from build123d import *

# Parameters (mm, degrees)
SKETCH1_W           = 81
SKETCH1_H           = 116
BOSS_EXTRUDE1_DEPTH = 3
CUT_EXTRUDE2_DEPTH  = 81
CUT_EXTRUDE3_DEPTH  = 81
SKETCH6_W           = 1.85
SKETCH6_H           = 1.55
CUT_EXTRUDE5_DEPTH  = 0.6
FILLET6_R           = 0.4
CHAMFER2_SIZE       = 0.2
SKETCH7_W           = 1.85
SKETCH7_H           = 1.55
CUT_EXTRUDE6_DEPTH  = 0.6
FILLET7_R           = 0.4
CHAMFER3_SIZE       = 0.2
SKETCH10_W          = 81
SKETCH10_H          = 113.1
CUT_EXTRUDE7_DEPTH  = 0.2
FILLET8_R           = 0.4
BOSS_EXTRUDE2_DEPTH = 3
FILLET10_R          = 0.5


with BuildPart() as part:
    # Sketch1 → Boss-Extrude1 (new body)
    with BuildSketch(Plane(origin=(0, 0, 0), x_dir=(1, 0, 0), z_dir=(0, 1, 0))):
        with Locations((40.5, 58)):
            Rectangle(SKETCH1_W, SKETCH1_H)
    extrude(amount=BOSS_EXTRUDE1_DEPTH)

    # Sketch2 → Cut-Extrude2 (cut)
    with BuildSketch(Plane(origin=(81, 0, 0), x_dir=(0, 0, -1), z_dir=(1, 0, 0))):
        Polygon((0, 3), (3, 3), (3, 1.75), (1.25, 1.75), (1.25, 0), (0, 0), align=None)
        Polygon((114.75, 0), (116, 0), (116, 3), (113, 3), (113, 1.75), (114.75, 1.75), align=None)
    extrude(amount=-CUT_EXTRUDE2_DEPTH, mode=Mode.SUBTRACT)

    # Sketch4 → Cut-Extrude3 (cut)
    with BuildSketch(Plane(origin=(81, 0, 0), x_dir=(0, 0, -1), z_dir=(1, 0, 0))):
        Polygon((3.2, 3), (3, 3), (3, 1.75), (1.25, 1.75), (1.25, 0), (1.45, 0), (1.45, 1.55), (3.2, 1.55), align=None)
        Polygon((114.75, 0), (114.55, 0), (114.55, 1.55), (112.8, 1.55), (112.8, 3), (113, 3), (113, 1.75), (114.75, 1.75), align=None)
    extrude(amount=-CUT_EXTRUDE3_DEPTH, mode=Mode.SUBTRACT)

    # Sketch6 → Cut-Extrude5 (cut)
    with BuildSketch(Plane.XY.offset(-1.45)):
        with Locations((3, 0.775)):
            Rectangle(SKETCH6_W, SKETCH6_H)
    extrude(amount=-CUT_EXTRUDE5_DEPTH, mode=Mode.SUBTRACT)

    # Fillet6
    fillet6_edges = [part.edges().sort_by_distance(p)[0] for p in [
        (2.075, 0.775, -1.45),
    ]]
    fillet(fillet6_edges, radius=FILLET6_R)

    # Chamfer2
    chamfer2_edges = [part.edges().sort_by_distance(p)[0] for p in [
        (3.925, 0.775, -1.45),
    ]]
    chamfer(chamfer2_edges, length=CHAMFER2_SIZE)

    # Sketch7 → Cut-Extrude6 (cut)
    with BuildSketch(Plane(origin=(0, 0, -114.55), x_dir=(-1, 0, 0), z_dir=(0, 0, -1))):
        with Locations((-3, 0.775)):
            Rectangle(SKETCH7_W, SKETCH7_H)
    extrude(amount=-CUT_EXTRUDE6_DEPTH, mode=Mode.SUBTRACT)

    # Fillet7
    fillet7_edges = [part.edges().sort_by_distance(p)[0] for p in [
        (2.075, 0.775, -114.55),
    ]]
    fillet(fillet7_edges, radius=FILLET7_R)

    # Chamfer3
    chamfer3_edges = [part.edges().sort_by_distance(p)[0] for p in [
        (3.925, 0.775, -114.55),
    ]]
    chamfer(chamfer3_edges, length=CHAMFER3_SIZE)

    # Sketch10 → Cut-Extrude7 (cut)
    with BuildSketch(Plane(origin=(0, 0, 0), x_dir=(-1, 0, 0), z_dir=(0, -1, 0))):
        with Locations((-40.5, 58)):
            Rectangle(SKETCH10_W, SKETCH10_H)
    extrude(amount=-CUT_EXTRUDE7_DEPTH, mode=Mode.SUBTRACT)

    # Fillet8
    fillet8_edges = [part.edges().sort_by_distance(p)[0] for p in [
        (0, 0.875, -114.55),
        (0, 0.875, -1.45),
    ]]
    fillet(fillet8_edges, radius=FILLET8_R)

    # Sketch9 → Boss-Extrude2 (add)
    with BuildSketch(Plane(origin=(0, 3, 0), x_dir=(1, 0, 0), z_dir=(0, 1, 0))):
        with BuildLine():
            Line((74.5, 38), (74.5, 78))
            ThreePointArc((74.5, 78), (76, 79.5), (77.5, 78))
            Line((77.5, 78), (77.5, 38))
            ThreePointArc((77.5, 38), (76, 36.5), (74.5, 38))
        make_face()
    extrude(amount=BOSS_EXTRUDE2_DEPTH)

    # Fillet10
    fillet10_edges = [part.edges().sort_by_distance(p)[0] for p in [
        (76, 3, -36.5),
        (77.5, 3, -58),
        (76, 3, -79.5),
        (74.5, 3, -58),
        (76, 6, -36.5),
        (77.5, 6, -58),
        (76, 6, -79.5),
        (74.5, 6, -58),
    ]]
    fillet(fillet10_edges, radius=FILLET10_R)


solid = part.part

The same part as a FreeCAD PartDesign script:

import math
import FreeCAD as App
import Part
import Sketcher

V = App.Vector


def edges_at(feature, points):
    """Names of the edges that pass closest to the given points."""
    edges = feature.Shape.Edges
    near = lambda p: min(range(len(edges)), key=lambda i: edges[i].distToShape(Part.Vertex(*p))[0])
    return sorted({f"Edge{near(p) + 1}" for p in points})

doc = App.newDocument("Part")
params = doc.addObject("Spreadsheet::Sheet", "Params")
for row, (alias, value) in enumerate([
    ("sketch1_width", "81 mm"),
    ("sketch1_height", "116 mm"),
    ("pad1_length", "3 mm"),
    ("sketch2_width", "3 mm"),
    ("sketch2_width2", "1.75 mm"),
    ("pocket1_length", "81 mm"),
    ("sketch3_height", "0.2 mm"),
    ("sketch3_width", "1.25 mm"),
    ("sketch3_width2", "1.55 mm"),
    ("pocket2_length", "81 mm"),
    ("sketch4_width", "1.85 mm"),
    ("sketch4_height", "1.55 mm"),
    ("pocket3_length", "0.6 mm"),
    ("fillet_radius", "0.4 mm"),
    ("chamfer_size", "0.2 mm"),
    ("sketch5_width", "1.85 mm"),
    ("sketch5_height", "1.55 mm"),
    ("pocket4_length", "0.6 mm"),
    ("fillet2_radius", "0.4 mm"),
    ("chamfer2_size", "0.2 mm"),
    ("sketch6_width", "81 mm"),
    ("sketch6_height", "113.1 mm"),
    ("pocket5_length", "0.2 mm"),
    ("fillet3_radius", "0.4 mm"),
    ("sketch7_radius", "1.5 mm"),
    ("sketch7_height", "40 mm"),
    ("pad2_length", "3 mm"),
    ("fillet4_radius", "0.5 mm"),
], start=1):
    params.set(f"A{row}", alias)
    params.set(f"B{row}", "=" + value)
    params.setAlias(f"B{row}", alias)

body = doc.addObject("PartDesign::Body", "Body")

# Sketch on XZ plane
sketch1 = doc.addObject("Sketcher::SketchObject", "Sketch")
body.addObject(sketch1)
sketch1.AttachmentSupport = (doc.XZ_Plane, [""])
sketch1.MapMode = "FlatFace"
sketch1.addGeometry(Part.LineSegment(V(0, -116, 0), V(0, 0, 0)), False)
sketch1.addGeometry(Part.LineSegment(V(0, 0, 0), V(81, 0, 0)), False)
sketch1.addGeometry(Part.LineSegment(V(81, 0, 0), V(81, -116, 0)), False)
sketch1.addGeometry(Part.LineSegment(V(81, -116, 0), V(0, -116, 0)), False)
sketch1.addConstraint(Sketcher.Constraint("Coincident", 0, 2, 1, 1))
sketch1.addConstraint(Sketcher.Constraint("Coincident", 1, 2, 2, 1))
sketch1.addConstraint(Sketcher.Constraint("Coincident", 2, 2, 3, 1))
sketch1.addConstraint(Sketcher.Constraint("Coincident", 3, 2, 0, 1))
sketch1.addConstraint(Sketcher.Constraint("Vertical", 0))
sketch1.addConstraint(Sketcher.Constraint("Horizontal", 1))
sketch1.addConstraint(Sketcher.Constraint("Vertical", 2))
sketch1.addConstraint(Sketcher.Constraint("Horizontal", 3))
sketch1.addConstraint(Sketcher.Constraint("Coincident", 0, 2, -1, 1))
sketch1.addConstraint(Sketcher.Constraint("DistanceX", 1, 1, 1, 2, 81.0))
sketch1.addConstraint(Sketcher.Constraint("DistanceY", 0, 1, 0, 2, 116.0))
sketch1.setExpression("Constraints[9]", "Params.sketch1_width")
sketch1.setExpression("Constraints[10]", "Params.sketch1_height")
pad1 = doc.addObject("PartDesign::Pad", "Pad")
body.addObject(pad1)
pad1.Profile = sketch1
pad1.setExpression("Length", "Params.pad1_length")
pad1.Reversed = True

# Sketch on YZ plane
sketch2 = doc.addObject("Sketcher::SketchObject", "Sketch001")
body.addObject(sketch2)
sketch2.AttachmentSupport = (doc.YZ_Plane, [""])
sketch2.MapMode = "FlatFace"
sketch2.AttachmentOffset = App.Placement(V(0, 0, 81), App.Rotation())
sketch2.addGeometry(Part.LineSegment(V(3, -3, 0), V(3, 0, 0)), False)
sketch2.addGeometry(Part.LineSegment(V(3, 0, 0), V(0, 0, 0)), False)
sketch2.addGeometry(Part.LineSegment(V(0, 0, 0), V(0, -1.25, 0)), False)
sketch2.addGeometry(Part.LineSegment(V(0, -1.25, 0), V(1.75, -1.25, 0)), False)
sketch2.addGeometry(Part.LineSegment(V(1.75, -1.25, 0), V(1.75, -3, 0)), False)
sketch2.addGeometry(Part.LineSegment(V(1.75, -3, 0), V(3, -3, 0)), False)
sketch2.addGeometry(Part.LineSegment(V(0, -114.75, 0), V(0, -116, 0)), False)
sketch2.addGeometry(Part.LineSegment(V(0, -116, 0), V(3, -116, 0)), False)
sketch2.addGeometry(Part.LineSegment(V(3, -116, 0), V(3, -113, 0)), False)
sketch2.addGeometry(Part.LineSegment(V(3, -113, 0), V(1.75, -113, 0)), False)
sketch2.addGeometry(Part.LineSegment(V(1.75, -113, 0), V(1.75, -114.75, 0)), False)
sketch2.addGeometry(Part.LineSegment(V(1.75, -114.75, 0), V(0, -114.75, 0)), False)
sketch2.addConstraint(Sketcher.Constraint("Coincident", 0, 2, 1, 1))
sketch2.addConstraint(Sketcher.Constraint("Coincident", 1, 2, 2, 1))
sketch2.addConstraint(Sketcher.Constraint("Coincident", 2, 2, 3, 1))
sketch2.addConstraint(Sketcher.Constraint("Coincident", 3, 2, 4, 1))
sketch2.addConstraint(Sketcher.Constraint("Coincident", 4, 2, 5, 1))
sketch2.addConstraint(Sketcher.Constraint("Coincident", 5, 2, 0, 1))
sketch2.addConstraint(Sketcher.Constraint("Coincident", 6, 2, 7, 1))
sketch2.addConstraint(Sketcher.Constraint("Coincident", 7, 2, 8, 1))
sketch2.addConstraint(Sketcher.Constraint("Coincident", 8, 2, 9, 1))
sketch2.addConstraint(Sketcher.Constraint("Coincident", 9, 2, 10, 1))
sketch2.addConstraint(Sketcher.Constraint("Coincident", 10, 2, 11, 1))
sketch2.addConstraint(Sketcher.Constraint("Coincident", 11, 2, 6, 1))
sketch2.addConstraint(Sketcher.Constraint("Vertical", 0))
sketch2.addConstraint(Sketcher.Constraint("Horizontal", 1))
sketch2.addConstraint(Sketcher.Constraint("Vertical", 2))
sketch2.addConstraint(Sketcher.Constraint("Horizontal", 3))
sketch2.addConstraint(Sketcher.Constraint("Vertical", 4))
sketch2.addConstraint(Sketcher.Constraint("Horizontal", 5))
sketch2.addConstraint(Sketcher.Constraint("Vertical", 6))
sketch2.addConstraint(Sketcher.Constraint("Horizontal", 7))
sketch2.addConstraint(Sketcher.Constraint("Vertical", 8))
sketch2.addConstraint(Sketcher.Constraint("Horizontal", 9))
sketch2.addConstraint(Sketcher.Constraint("Vertical", 10))
sketch2.addConstraint(Sketcher.Constraint("Horizontal", 11))
sketch2.addConstraint(Sketcher.Constraint("Coincident", 1, 2, -1, 1))
sketch2.addConstraint(Sketcher.Constraint("PointOnObject", 6, 2, -2))
sketch2.addConstraint(Sketcher.Constraint("Vertical", 5, 2, 7, 2))
sketch2.addConstraint(Sketcher.Constraint("Vertical", 4, 2, 9, 2))
sketch2.addConstraint(Sketcher.Constraint("Equal", 7, 0))
sketch2.addConstraint(Sketcher.Constraint("Equal", 9, 2))
sketch2.addConstraint(Sketcher.Constraint("Equal", 2, 6))
sketch2.addConstraint(Sketcher.Constraint("Equal", 0, 8))
sketch2.addConstraint(Sketcher.Constraint("DistanceX", 1, 2, 1, 1, 3.0))
sketch2.addConstraint(Sketcher.Constraint("DistanceY", 6, 2, -1, 1, 116.0))
sketch2.addConstraint(Sketcher.Constraint("DistanceX", 3, 1, 3, 2, 1.75))
sketch2.setExpression("Constraints[32]", "Params.sketch2_width")
sketch2.setExpression("Constraints[34]", "Params.sketch2_width2")
pocket1 = doc.addObject("PartDesign::Pocket", "Pocket")
body.addObject(pocket1)
pocket1.Profile = sketch2
pocket1.setExpression("Length", "Params.pocket1_length")

# Sketch on YZ plane
sketch3 = doc.addObject("Sketcher::SketchObject", "Sketch002")
body.addObject(sketch3)
sketch3.AttachmentSupport = (doc.YZ_Plane, [""])
sketch3.MapMode = "FlatFace"
sketch3.AttachmentOffset = App.Placement(V(0, 0, 81), App.Rotation())
sketch3.addGeometry(Part.LineSegment(V(3, -3.2, 0), V(3, -3, 0)), False)
sketch3.addGeometry(Part.LineSegment(V(3, -3, 0), V(1.75, -3, 0)), False)
sketch3.addGeometry(Part.LineSegment(V(1.75, -3, 0), V(1.75, -1.25, 0)), False)
sketch3.addGeometry(Part.LineSegment(V(1.75, -1.25, 0), V(0, -1.25, 0)), False)
sketch3.addGeometry(Part.LineSegment(V(0, -1.25, 0), V(0, -1.45, 0)), False)
sketch3.addGeometry(Part.LineSegment(V(0, -1.45, 0), V(1.55, -1.45, 0)), False)
sketch3.addGeometry(Part.LineSegment(V(1.55, -1.45, 0), V(1.55, -3.2, 0)), False)
sketch3.addGeometry(Part.LineSegment(V(1.55, -3.2, 0), V(3, -3.2, 0)), False)
sketch3.addGeometry(Part.LineSegment(V(0, -114.55, 0), V(0, -114.75, 0)), False)
sketch3.addGeometry(Part.LineSegment(V(0, -114.75, 0), V(1.75, -114.75, 0)), False)
sketch3.addGeometry(Part.LineSegment(V(1.75, -114.75, 0), V(1.75, -113, 0)), False)
sketch3.addGeometry(Part.LineSegment(V(1.75, -113, 0), V(3, -113, 0)), False)
sketch3.addGeometry(Part.LineSegment(V(3, -113, 0), V(3, -112.8, 0)), False)
sketch3.addGeometry(Part.LineSegment(V(3, -112.8, 0), V(1.55, -112.8, 0)), False)
sketch3.addGeometry(Part.LineSegment(V(1.55, -112.8, 0), V(1.55, -114.55, 0)), False)
sketch3.addGeometry(Part.LineSegment(V(1.55, -114.55, 0), V(0, -114.55, 0)), False)
sketch3.addConstraint(Sketcher.Constraint("Coincident", 0, 2, 1, 1))
sketch3.addConstraint(Sketcher.Constraint("Coincident", 1, 2, 2, 1))
sketch3.addConstraint(Sketcher.Constraint("Coincident", 2, 2, 3, 1))
sketch3.addConstraint(Sketcher.Constraint("Coincident", 3, 2, 4, 1))
sketch3.addConstraint(Sketcher.Constraint("Coincident", 4, 2, 5, 1))
sketch3.addConstraint(Sketcher.Constraint("Coincident", 5, 2, 6, 1))
sketch3.addConstraint(Sketcher.Constraint("Coincident", 6, 2, 7, 1))
sketch3.addConstraint(Sketcher.Constraint("Coincident", 7, 2, 0, 1))
sketch3.addConstraint(Sketcher.Constraint("Coincident", 8, 2, 9, 1))
sketch3.addConstraint(Sketcher.Constraint("Coincident", 9, 2, 10, 1))
sketch3.addConstraint(Sketcher.Constraint("Coincident", 10, 2, 11, 1))
sketch3.addConstraint(Sketcher.Constraint("Coincident", 11, 2, 12, 1))
sketch3.addConstraint(Sketcher.Constraint("Coincident", 12, 2, 13, 1))
sketch3.addConstraint(Sketcher.Constraint("Coincident", 13, 2, 14, 1))
sketch3.addConstraint(Sketcher.Constraint("Coincident", 14, 2, 15, 1))
sketch3.addConstraint(Sketcher.Constraint("Coincident", 15, 2, 8, 1))
sketch3.addConstraint(Sketcher.Constraint("Vertical", 0))
sketch3.addConstraint(Sketcher.Constraint("Horizontal", 1))
sketch3.addConstraint(Sketcher.Constraint("Vertical", 2))
sketch3.addConstraint(Sketcher.Constraint("Horizontal", 3))
sketch3.addConstraint(Sketcher.Constraint("Vertical", 4))
sketch3.addConstraint(Sketcher.Constraint("Horizontal", 5))
sketch3.addConstraint(Sketcher.Constraint("Vertical", 6))
sketch3.addConstraint(Sketcher.Constraint("Horizontal", 7))
sketch3.addConstraint(Sketcher.Constraint("Vertical", 8))
sketch3.addConstraint(Sketcher.Constraint("Horizontal", 9))
sketch3.addConstraint(Sketcher.Constraint("Vertical", 10))
sketch3.addConstraint(Sketcher.Constraint("Horizontal", 11))
sketch3.addConstraint(Sketcher.Constraint("Vertical", 12))
sketch3.addConstraint(Sketcher.Constraint("Horizontal", 13))
sketch3.addConstraint(Sketcher.Constraint("Vertical", 14))
sketch3.addConstraint(Sketcher.Constraint("Horizontal", 15))
sketch3.addConstraint(Sketcher.Constraint("PointOnObject", 3, 2, -2))
sketch3.addConstraint(Sketcher.Constraint("PointOnObject", 8, 2, -2))
sketch3.addConstraint(Sketcher.Constraint("Vertical", 2, 2, 9, 2))
sketch3.addConstraint(Sketcher.Constraint("Vertical", 7, 2, 11, 2))
sketch3.addConstraint(Sketcher.Constraint("Vertical", 6, 2, 13, 2))
sketch3.addConstraint(Sketcher.Constraint("Equal", 9, 2))
sketch3.addConstraint(Sketcher.Constraint("Equal", 0, 4))
sketch3.addConstraint(Sketcher.Constraint("Equal", 4, 8))
sketch3.addConstraint(Sketcher.Constraint("Equal", 6, 10))
sketch3.addConstraint(Sketcher.Constraint("Equal", 8, 12))
sketch3.addConstraint(Sketcher.Constraint("DistanceY", 0, 1, 0, 2, 0.2))
sketch3.addConstraint(Sketcher.Constraint("DistanceX", -1, 1, 0, 2, 3.0))
sketch3.addConstraint(Sketcher.Constraint("DistanceY", 0, 2, -1, 1, 3.0))
sketch3.addConstraint(Sketcher.Constraint("DistanceY", 10, 2, -1, 1, 113.0))
sketch3.addConstraint(Sketcher.Constraint("DistanceX", 1, 2, 1, 1, 1.25))
sketch3.addConstraint(Sketcher.Constraint("DistanceX", 5, 1, 5, 2, 1.55))
sketch3.setExpression("Constraints[42]", "Params.sketch3_height")
sketch3.setExpression("Constraints[46]", "Params.sketch3_width")
sketch3.setExpression("Constraints[47]", "Params.sketch3_width2")
pocket2 = doc.addObject("PartDesign::Pocket", "Pocket001")
body.addObject(pocket2)
pocket2.Profile = sketch3
pocket2.setExpression("Length", "Params.pocket2_length")

# Sketch on XY plane
sketch4 = doc.addObject("Sketcher::SketchObject", "Sketch003")
body.addObject(sketch4)
sketch4.AttachmentSupport = (doc.XY_Plane, [""])
sketch4.MapMode = "FlatFace"
sketch4.AttachmentOffset = App.Placement(V(0, 0, -1.45), App.Rotation())
sketch4.addGeometry(Part.LineSegment(V(2.075, 1.55, 0), V(2.075, 0, 0)), False)
sketch4.addGeometry(Part.LineSegment(V(2.075, 0, 0), V(3.925, 0, 0)), False)
sketch4.addGeometry(Part.LineSegment(V(3.925, 0, 0), V(3.925, 1.55, 0)), False)
sketch4.addGeometry(Part.LineSegment(V(3.925, 1.55, 0), V(2.075, 1.55, 0)), False)
sketch4.addConstraint(Sketcher.Constraint("Coincident", 0, 2, 1, 1))
sketch4.addConstraint(Sketcher.Constraint("Coincident", 1, 2, 2, 1))
sketch4.addConstraint(Sketcher.Constraint("Coincident", 2, 2, 3, 1))
sketch4.addConstraint(Sketcher.Constraint("Coincident", 3, 2, 0, 1))
sketch4.addConstraint(Sketcher.Constraint("Vertical", 0))
sketch4.addConstraint(Sketcher.Constraint("Horizontal", 1))
sketch4.addConstraint(Sketcher.Constraint("Vertical", 2))
sketch4.addConstraint(Sketcher.Constraint("Horizontal", 3))
sketch4.addConstraint(Sketcher.Constraint("PointOnObject", 0, 2, -1))
sketch4.addConstraint(Sketcher.Constraint("DistanceX", 1, 1, 1, 2, 1.85))
sketch4.addConstraint(Sketcher.Constraint("DistanceY", 0, 2, 0, 1, 1.55))
sketch4.addConstraint(Sketcher.Constraint("DistanceX", -1, 1, 0, 2, 2.075))
sketch4.setExpression("Constraints[9]", "Params.sketch4_width")
sketch4.setExpression("Constraints[10]", "Params.sketch4_height")
pocket3 = doc.addObject("PartDesign::Pocket", "Pocket002")
body.addObject(pocket3)
pocket3.Profile = sketch4
pocket3.setExpression("Length", "Params.pocket3_length")
doc.recompute()

fillet = doc.addObject("PartDesign::Fillet", "Fillet")
body.addObject(fillet)
fillet.Base = (pocket3, edges_at(pocket3, [(2.075, 0.775, -1.45)]))
fillet.setExpression("Radius", "Params.fillet_radius")
doc.recompute()

chamfer = doc.addObject("PartDesign::Chamfer", "Chamfer")
body.addObject(chamfer)
chamfer.Base = (fillet, edges_at(fillet, [(3.925, 0.775, -1.45)]))
chamfer.setExpression("Size", "Params.chamfer_size")

# Sketch on XY plane
sketch5 = doc.addObject("Sketcher::SketchObject", "Sketch004")
body.addObject(sketch5)
sketch5.AttachmentSupport = (doc.XY_Plane, [""])
sketch5.MapMode = "FlatFace"
sketch5.AttachmentOffset = App.Placement(V(0, 0, -114.55), App.Rotation())
sketch5.addGeometry(Part.LineSegment(V(3.925, 1.55, 0), V(3.925, 0, 0)), False)
sketch5.addGeometry(Part.LineSegment(V(3.925, 0, 0), V(2.075, 0, 0)), False)
sketch5.addGeometry(Part.LineSegment(V(2.075, 0, 0), V(2.075, 1.55, 0)), False)
sketch5.addGeometry(Part.LineSegment(V(2.075, 1.55, 0), V(3.925, 1.55, 0)), False)
sketch5.addConstraint(Sketcher.Constraint("Coincident", 0, 2, 1, 1))
sketch5.addConstraint(Sketcher.Constraint("Coincident", 1, 2, 2, 1))
sketch5.addConstraint(Sketcher.Constraint("Coincident", 2, 2, 3, 1))
sketch5.addConstraint(Sketcher.Constraint("Coincident", 3, 2, 0, 1))
sketch5.addConstraint(Sketcher.Constraint("Vertical", 0))
sketch5.addConstraint(Sketcher.Constraint("Horizontal", 1))
sketch5.addConstraint(Sketcher.Constraint("Vertical", 2))
sketch5.addConstraint(Sketcher.Constraint("Horizontal", 3))
sketch5.addConstraint(Sketcher.Constraint("PointOnObject", 0, 2, -1))
sketch5.addConstraint(Sketcher.Constraint("DistanceX", 1, 2, 1, 1, 1.85))
sketch5.addConstraint(Sketcher.Constraint("DistanceY", 0, 2, 0, 1, 1.55))
sketch5.addConstraint(Sketcher.Constraint("DistanceX", -1, 1, 0, 2, 3.925))
sketch5.setExpression("Constraints[9]", "Params.sketch5_width")
sketch5.setExpression("Constraints[10]", "Params.sketch5_height")
pocket4 = doc.addObject("PartDesign::Pocket", "Pocket003")
body.addObject(pocket4)
pocket4.Profile = sketch5
pocket4.setExpression("Length", "Params.pocket4_length")
pocket4.Reversed = True
doc.recompute()

fillet2 = doc.addObject("PartDesign::Fillet", "Fillet001")
body.addObject(fillet2)
fillet2.Base = (pocket4, edges_at(pocket4, [(2.075, 0.775, -114.55)]))
fillet2.setExpression("Radius", "Params.fillet2_radius")
doc.recompute()

chamfer2 = doc.addObject("PartDesign::Chamfer", "Chamfer001")
body.addObject(chamfer2)
chamfer2.Base = (fillet2, edges_at(fillet2, [(3.925, 0.775, -114.55)]))
chamfer2.setExpression("Size", "Params.chamfer2_size")

# Sketch on XZ plane
sketch6 = doc.addObject("Sketcher::SketchObject", "Sketch005")
body.addObject(sketch6)
sketch6.AttachmentSupport = (doc.XZ_Plane, [""])
sketch6.MapMode = "FlatFace"
sketch6.addGeometry(Part.LineSegment(V(81, -114.55, 0), V(81, -1.45, 0)), False)
sketch6.addGeometry(Part.LineSegment(V(81, -1.45, 0), V(0, -1.45, 0)), False)
sketch6.addGeometry(Part.LineSegment(V(0, -1.45, 0), V(0, -114.55, 0)), False)
sketch6.addGeometry(Part.LineSegment(V(0, -114.55, 0), V(81, -114.55, 0)), False)
sketch6.addConstraint(Sketcher.Constraint("Coincident", 0, 2, 1, 1))
sketch6.addConstraint(Sketcher.Constraint("Coincident", 1, 2, 2, 1))
sketch6.addConstraint(Sketcher.Constraint("Coincident", 2, 2, 3, 1))
sketch6.addConstraint(Sketcher.Constraint("Coincident", 3, 2, 0, 1))
sketch6.addConstraint(Sketcher.Constraint("Vertical", 0))
sketch6.addConstraint(Sketcher.Constraint("Horizontal", 1))
sketch6.addConstraint(Sketcher.Constraint("Vertical", 2))
sketch6.addConstraint(Sketcher.Constraint("Horizontal", 3))
sketch6.addConstraint(Sketcher.Constraint("PointOnObject", 1, 2, -2))
sketch6.addConstraint(Sketcher.Constraint("DistanceX", 1, 2, 1, 1, 81.0))
sketch6.addConstraint(Sketcher.Constraint("DistanceY", 0, 1, 0, 2, 113.1))
sketch6.addConstraint(Sketcher.Constraint("DistanceY", 0, 2, -1, 1, 1.45))
sketch6.setExpression("Constraints[9]", "Params.sketch6_width")
sketch6.setExpression("Constraints[10]", "Params.sketch6_height")
pocket5 = doc.addObject("PartDesign::Pocket", "Pocket004")
body.addObject(pocket5)
pocket5.Profile = sketch6
pocket5.setExpression("Length", "Params.pocket5_length")
doc.recompute()

fillet3 = doc.addObject("PartDesign::Fillet", "Fillet002")
body.addObject(fillet3)
fillet3.Base = (pocket5, edges_at(pocket5, [(0, 0.875, -114.55), (0, 0.875, -1.45)]))
fillet3.setExpression("Radius", "Params.fillet3_radius")

# Sketch on XZ plane
sketch7 = doc.addObject("Sketcher::SketchObject", "Sketch006")
body.addObject(sketch7)
sketch7.AttachmentSupport = (doc.XZ_Plane, [""])
sketch7.MapMode = "FlatFace"
sketch7.AttachmentOffset = App.Placement(V(0, 0, -3), App.Rotation())
sketch7.addGeometry(Part.LineSegment(V(74.5, -78, 0), V(74.5, -38, 0)), False)
sketch7.addGeometry(Part.ArcOfCircle(Part.Circle(V(76, -38, 0), V(0, 0, 1), 1.5), math.radians(0), math.radians(180)), False)
sketch7.addGeometry(Part.LineSegment(V(77.5, -38, 0), V(77.5, -78, 0)), False)
sketch7.addGeometry(Part.ArcOfCircle(Part.Circle(V(76, -78, 0), V(0, 0, 1), 1.5), math.radians(180), math.radians(360)), False)
sketch7.addConstraint(Sketcher.Constraint("Tangent", 0, 2, 1, 2))
sketch7.addConstraint(Sketcher.Constraint("Tangent", 1, 1, 2, 1))
sketch7.addConstraint(Sketcher.Constraint("Tangent", 2, 2, 3, 2))
sketch7.addConstraint(Sketcher.Constraint("Tangent", 3, 1, 0, 1))
sketch7.addConstraint(Sketcher.Constraint("Vertical", 0))
sketch7.addConstraint(Sketcher.Constraint("Vertical", 2))
sketch7.addConstraint(Sketcher.Constraint("Radius", 1, 1.5))
sketch7.addConstraint(Sketcher.Constraint("DistanceY", 0, 1, 0, 2, 40.0))
sketch7.addConstraint(Sketcher.Constraint("DistanceX", -1, 1, 1, 3, 76.0))
sketch7.addConstraint(Sketcher.Constraint("DistanceY", 1, 3, -1, 1, 38.0))
sketch7.setExpression("Constraints[6]", "Params.sketch7_radius")
sketch7.setExpression("Constraints[7]", "Params.sketch7_height")
pad2 = doc.addObject("PartDesign::Pad", "Pad001")
body.addObject(pad2)
pad2.Profile = sketch7
pad2.setExpression("Length", "Params.pad2_length")
pad2.Reversed = True
doc.recompute()

fillet4 = doc.addObject("PartDesign::Fillet", "Fillet003")
body.addObject(fillet4)
fillet4.Base = (pad2, edges_at(pad2, [
    (76, 3, -36.5),
    (77.5, 3, -58),
    (76, 3, -79.5),
    (74.5, 3, -58),
    (76, 6, -36.5),
    (77.5, 6, -58),
    (76, 6, -79.5),
    (74.5, 6, -58),
]))
fillet4.setExpression("Radius", "Params.fillet4_radius")

doc.recompute()
